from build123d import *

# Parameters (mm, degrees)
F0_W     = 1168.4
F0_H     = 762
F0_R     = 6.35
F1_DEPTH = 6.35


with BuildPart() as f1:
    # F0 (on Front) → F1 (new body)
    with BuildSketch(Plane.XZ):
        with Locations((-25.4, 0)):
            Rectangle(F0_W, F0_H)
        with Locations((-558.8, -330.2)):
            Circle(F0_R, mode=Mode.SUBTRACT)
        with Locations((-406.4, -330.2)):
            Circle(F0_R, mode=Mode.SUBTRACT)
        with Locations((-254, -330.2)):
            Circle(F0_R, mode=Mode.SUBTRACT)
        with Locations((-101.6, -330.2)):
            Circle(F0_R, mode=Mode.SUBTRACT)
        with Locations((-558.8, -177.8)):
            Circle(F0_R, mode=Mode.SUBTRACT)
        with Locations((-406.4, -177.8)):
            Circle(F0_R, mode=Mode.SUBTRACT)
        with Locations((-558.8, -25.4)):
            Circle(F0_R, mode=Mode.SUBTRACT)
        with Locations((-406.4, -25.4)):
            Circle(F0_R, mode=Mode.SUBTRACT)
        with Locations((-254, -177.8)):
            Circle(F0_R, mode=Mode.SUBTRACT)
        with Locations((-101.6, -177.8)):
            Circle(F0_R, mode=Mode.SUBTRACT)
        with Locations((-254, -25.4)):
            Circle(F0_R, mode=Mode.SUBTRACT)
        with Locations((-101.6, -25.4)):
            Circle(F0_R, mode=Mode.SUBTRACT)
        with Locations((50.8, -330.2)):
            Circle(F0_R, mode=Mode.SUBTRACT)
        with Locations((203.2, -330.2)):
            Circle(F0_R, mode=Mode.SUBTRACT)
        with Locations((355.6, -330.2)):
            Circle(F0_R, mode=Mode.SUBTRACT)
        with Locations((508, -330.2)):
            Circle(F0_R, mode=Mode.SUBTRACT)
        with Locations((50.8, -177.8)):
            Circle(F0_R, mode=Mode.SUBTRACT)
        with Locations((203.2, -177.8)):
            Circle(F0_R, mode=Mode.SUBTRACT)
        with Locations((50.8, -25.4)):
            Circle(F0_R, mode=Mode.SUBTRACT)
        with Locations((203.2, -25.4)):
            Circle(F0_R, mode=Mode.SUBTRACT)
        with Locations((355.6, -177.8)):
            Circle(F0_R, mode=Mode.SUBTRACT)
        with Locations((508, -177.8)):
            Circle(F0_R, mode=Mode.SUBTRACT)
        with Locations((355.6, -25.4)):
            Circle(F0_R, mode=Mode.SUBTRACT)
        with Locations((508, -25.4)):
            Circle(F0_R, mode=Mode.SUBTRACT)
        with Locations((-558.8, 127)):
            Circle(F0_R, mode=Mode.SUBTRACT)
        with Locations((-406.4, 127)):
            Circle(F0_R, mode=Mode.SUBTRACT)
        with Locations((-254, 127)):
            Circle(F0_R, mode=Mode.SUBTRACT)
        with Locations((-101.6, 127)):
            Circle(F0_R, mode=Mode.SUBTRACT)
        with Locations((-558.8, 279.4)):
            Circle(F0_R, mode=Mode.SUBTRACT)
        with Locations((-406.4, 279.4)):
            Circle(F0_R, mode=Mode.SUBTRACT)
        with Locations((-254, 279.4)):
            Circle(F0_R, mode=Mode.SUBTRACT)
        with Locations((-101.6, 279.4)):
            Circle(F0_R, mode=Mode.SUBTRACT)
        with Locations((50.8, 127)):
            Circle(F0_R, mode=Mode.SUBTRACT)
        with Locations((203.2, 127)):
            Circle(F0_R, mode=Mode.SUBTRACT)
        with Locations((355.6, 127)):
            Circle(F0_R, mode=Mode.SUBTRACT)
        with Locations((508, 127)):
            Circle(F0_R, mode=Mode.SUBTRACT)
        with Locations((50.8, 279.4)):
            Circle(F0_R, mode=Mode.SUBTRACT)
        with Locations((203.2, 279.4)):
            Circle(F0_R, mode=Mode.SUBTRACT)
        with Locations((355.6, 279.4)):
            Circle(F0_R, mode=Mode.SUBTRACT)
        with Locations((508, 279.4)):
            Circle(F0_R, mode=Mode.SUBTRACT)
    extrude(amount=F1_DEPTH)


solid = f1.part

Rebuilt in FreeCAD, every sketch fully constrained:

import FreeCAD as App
import Part
import Sketcher
from FreeCAD import Vector
Q = App.Units.Quantity


def add_polygon(sketch, points):
    """Adds a closed chain of lines whose ends are joined by coincident constraints."""
    first, n = sketch.GeometryCount, len(points)
    for a, b in zip(points, points[1:] + points[:1]):
        sketch.addGeometry(Part.LineSegment(App.Vector(*a, 0), App.Vector(*b, 0)), False)
    for i in range(n):
        sketch.addConstraint(Sketcher.Constraint("Coincident", first + i, 2, first + (i + 1) % n, 1))

doc = App.newDocument("Part")
body = doc.addObject("PartDesign::Body", "Body")

sketch1 = body.newObject("Sketcher::SketchObject", "Sketch")
sketch1.AttachmentSupport = (doc.getObject("XZ_Plane"), [""])
sketch1.MapMode = "FlatFace"
add_polygon(sketch1, [(-610, 381), (-610, -381), (559, -381), (559, 381)])
sketch1.addGeometry(Part.Circle(Vector(-559, -330, 0), Vector(0, 0, 1), 6), False)
sketch1.addGeometry(Part.Circle(Vector(-406, -330, 0), Vector(0, 0, 1), 6), False)
sketch1.addGeometry(Part.Circle(Vector(-254, -330, 0), Vector(0, 0, 1), 6), False)
sketch1.addGeometry(Part.Circle(Vector(-102, -330, 0), Vector(0, 0, 1), 6), False)
sketch1.addGeometry(Part.Circle(Vector(-559, -178, 0), Vector(0, 0, 1), 6), False)
sketch1.addGeometry(Part.Circle(Vector(-406, -178, 0), Vector(0, 0, 1), 6), False)
sketch1.addGeometry(Part.Circle(Vector(-254, -178, 0), Vector(0, 0, 1), 6), False)
sketch1.addGeometry(Part.Circle(Vector(-102, -178, 0), Vector(0, 0, 1), 6), False)
sketch1.addGeometry(Part.Circle(Vector(51, -330, 0), Vector(0, 0, 1), 6), False)
sketch1.addGeometry(Part.Circle(Vector(203, -330, 0), Vector(0, 0, 1), 6), False)
sketch1.addGeometry(Part.Circle(Vector(356, -330, 0), Vector(0, 0, 1), 6), False)
sketch1.addGeometry(Part.Circle(Vector(508, -330, 0), Vector(0, 0, 1), 6), False)
sketch1.addGeometry(Part.Circle(Vector(51, -178, 0), Vector(0, 0, 1), 6), False)
sketch1.addGeometry(Part.Circle(Vector(203, -178, 0), Vector(0, 0, 1), 6), False)
sketch1.addGeometry(Part.Circle(Vector(356, -178, 0), Vector(0, 0, 1), 6), False)
sketch1.addGeometry(Part.Circle(Vector(508, -178, 0), Vector(0, 0, 1), 6), False)
sketch1.addGeometry(Part.Circle(Vector(-559, -25, 0), Vector(0, 0, 1), 6), False)
sketch1.addGeometry(Part.Circle(Vector(-406, -25, 0), Vector(0, 0, 1), 6), False)
sketch1.addGeometry(Part.Circle(Vector(-559, 127, 0), Vector(0, 0, 1), 6), False)
sketch1.addGeometry(Part.Circle(Vector(-406, 127, 0), Vector(0, 0, 1), 6), False)
sketch1.addGeometry(Part.Circle(Vector(-254, -25, 0), Vector(0, 0, 1), 6), False)
sketch1.addGeometry(Part.Circle(Vector(-102, -25, 0), Vector(0, 0, 1), 6), False)
sketch1.addGeometry(Part.Circle(Vector(-254, 127, 0), Vector(0, 0, 1), 6), False)
sketch1.addGeometry(Part.Circle(Vector(-102, 127, 0), Vector(0, 0, 1), 6), False)
sketch1.addGeometry(Part.Circle(Vector(-559, 279, 0), Vector(0, 0, 1), 6), False)
sketch1.addGeometry(Part.Circle(Vector(-406, 279, 0), Vector(0, 0, 1), 6), False)
sketch1.addGeometry(Part.Circle(Vector(-254, 279, 0), Vector(0, 0, 1), 6), False)
sketch1.addGeometry(Part.Circle(Vector(-102, 279, 0), Vector(0, 0, 1), 6), False)
sketch1.addGeometry(Part.Circle(Vector(51, -25, 0), Vector(0, 0, 1), 6), False)
sketch1.addGeometry(Part.Circle(Vector(203, -25, 0), Vector(0, 0, 1), 6), False)
sketch1.addGeometry(Part.Circle(Vector(51, 127, 0), Vector(0, 0, 1), 6), False)
sketch1.addGeometry(Part.Circle(Vector(203, 127, 0), Vector(0, 0, 1), 6), False)
sketch1.addGeometry(Part.Circle(Vector(356, -25, 0), Vector(0, 0, 1), 6), False)
sketch1.addGeometry(Part.Circle(Vector(508, -25, 0), Vector(0, 0, 1), 6), False)
sketch1.addGeometry(Part.Circle(Vector(356, 127, 0), Vector(0, 0, 1), 6), False)
sketch1.addGeometry(Part.Circle(Vector(508, 127, 0), Vector(0, 0, 1), 6), False)
sketch1.addGeometry(Part.Circle(Vector(51, 279, 0), Vector(0, 0, 1), 6), False)
sketch1.addGeometry(Part.Circle(Vector(203, 279, 0), Vector(0, 0, 1), 6), False)
sketch1.addGeometry(Part.Circle(Vector(356, 279, 0), Vector(0, 0, 1), 6), False)
sketch1.addGeometry(Part.Circle(Vector(508, 279, 0), Vector(0, 0, 1), 6), False)
sketch1.addConstraint(Sketcher.Constraint("Vertical", 0))
sketch1.addConstraint(Sketcher.Constraint("Horizontal", 1))
sketch1.addConstraint(Sketcher.Constraint("Vertical", 2))
sketch1.addConstraint(Sketcher.Constraint("Horizontal", 3))
sketch1.addConstraint(Sketcher.Constraint("Equal", 4, 5))
sketch1.addConstraint(Sketcher.Constraint("Equal", 5, 6))
sketch1.addConstraint(Sketcher.Constraint("Equal", 6, 7))
sketch1.addConstraint(Sketcher.Constraint("Equal", 7, 8))
sketch1.addConstraint(Sketcher.Constraint("Equal", 8, 9))
sketch1.addConstraint(Sketcher.Constraint("Equal", 9, 10))
sketch1.addConstraint(Sketcher.Constraint("Equal", 10, 11))
sketch1.addConstraint(Sketcher.Constraint("Equal", 11, 12))
sketch1.addConstraint(Sketcher.Constraint("Equal", 12, 13))
sketch1.addConstraint(Sketcher.Constraint("Equal", 13, 14))
sketch1.addConstraint(Sketcher.Constraint("Equal", 14, 15))
sketch1.addConstraint(Sketcher.Constraint("Equal", 15, 16))
sketch1.addConstraint(Sketcher.Constraint("Equal", 16, 17))
sketch1.addConstraint(Sketcher.Constraint("Equal", 17, 18))
sketch1.addConstraint(Sketcher.Constraint("Equal", 18, 19))
sketch1.addConstraint(Sketcher.Constraint("Equal", 19, 20))
sketch1.addConstraint(Sketcher.Constraint("Equal", 20, 21))
sketch1.addConstraint(Sketcher.Constraint("Equal", 21, 22))
sketch1.addConstraint(Sketcher.Constraint("Equal", 22, 23))
sketch1.addConstraint(Sketcher.Constraint("Equal", 23, 24))
sketch1.addConstraint(Sketcher.Constraint("Equal", 24, 25))
sketch1.addConstraint(Sketcher.Constraint("Equal", 25, 26))
sketch1.addConstraint(Sketcher.Constraint("Equal", 26, 27))
sketch1.addConstraint(Sketcher.Constraint("Equal", 27, 28))
sketch1.addConstraint(Sketcher.Constraint("Equal", 28, 29))
sketch1.addConstraint(Sketcher.Constraint("Equal", 29, 30))
sketch1.addConstraint(Sketcher.Constraint("Equal", 30, 31))
sketch1.addConstraint(Sketcher.Constraint("Equal", 31, 32))
sketch1.addConstraint(Sketcher.Constraint("Equal", 32, 33))
sketch1.addConstraint(Sketcher.Constraint("Equal", 33, 34))
sketch1.addConstraint(Sketcher.Constraint("Equal", 34, 35))
sketch1.addConstraint(Sketcher.Constraint("Equal", 35, 36))
sketch1.addConstraint(Sketcher.Constraint("Equal", 36, 37))
sketch1.addConstraint(Sketcher.Constraint("Equal", 37, 38))
sketch1.addConstraint(Sketcher.Constraint("Equal", 38, 39))
sketch1.addConstraint(Sketcher.Constraint("Equal", 39, 40))
sketch1.addConstraint(Sketcher.Constraint("Equal", 40, 41))
sketch1.addConstraint(Sketcher.Constraint("Equal", 41, 42))
sketch1.addConstraint(Sketcher.Constraint("Equal", 42, 43))
sketch1.addConstraint(Sketcher.Constraint("Horizontal", 4, 3, 5, 3))
sketch1.addConstraint(Sketcher.Constraint("Horizontal", 5, 3, 6, 3))
sketch1.addConstraint(Sketcher.Constraint("Horizontal", 6, 3, 7, 3))
sketch1.addConstraint(Sketcher.Constraint("Horizontal", 8, 3, 9, 3))
sketch1.addConstraint(Sketcher.Constraint("Horizontal", 9, 3, 10, 3))
sketch1.addConstraint(Sketcher.Constraint("Horizontal", 10, 3, 11, 3))
sketch1.addConstraint(Sketcher.Constraint("Horizontal", 7, 3, 12, 3))
sketch1.addConstraint(Sketcher.Constraint("Horizontal", 12, 3, 13, 3))
sketch1.addConstraint(Sketcher.Constraint("Horizontal", 13, 3, 14, 3))
sketch1.addConstraint(Sketcher.Constraint("Horizontal", 14, 3, 15, 3))
sketch1.addConstraint(Sketcher.Constraint("Horizontal", 11, 3, 16, 3))
sketch1.addConstraint(Sketcher.Constraint("Horizontal", 16, 3, 17, 3))
sketch1.addConstraint(Sketcher.Constraint("Horizontal", 17, 3, 18, 3))
sketch1.addConstraint(Sketcher.Constraint("Horizontal", 18, 3, 19, 3))
sketch1.addConstraint(Sketcher.Constraint("Horizontal", 20, 3, 21, 3))
sketch1.addConstraint(Sketcher.Constraint("Horizontal", 22, 3, 23, 3))
sketch1.addConstraint(Sketcher.Constraint("Horizontal", 21, 3, 24, 3))
sketch1.addConstraint(Sketcher.Constraint("Horizontal", 24, 3, 25, 3))
sketch1.addConstraint(Sketcher.Constraint("Horizontal", 23, 3, 26, 3))
sketch1.addConstraint(Sketcher.Constraint("Horizontal", 26, 3, 27, 3))
sketch1.addConstraint(Sketcher.Constraint("Horizontal", 28, 3, 29, 3))
sketch1.addConstraint(Sketcher.Constraint("Horizontal", 29, 3, 30, 3))
sketch1.addConstraint(Sketcher.Constraint("Horizontal", 30, 3, 31, 3))
sketch1.addConstraint(Sketcher.Constraint("Horizontal", 25, 3, 32, 3))
sketch1.addConstraint(Sketcher.Constraint("Horizontal", 32, 3, 33, 3))
sketch1.addConstraint(Sketcher.Constraint("Horizontal", 27, 3, 34, 3))
sketch1.addConstraint(Sketcher.Constraint("Horizontal", 34, 3, 35, 3))
sketch1.addConstraint(Sketcher.Constraint("Horizontal", 33, 3, 36, 3))
sketch1.addConstraint(Sketcher.Constraint("Horizontal", 36, 3, 37, 3))
sketch1.addConstraint(Sketcher.Constraint("Horizontal", 35, 3, 38, 3))
sketch1.addConstraint(Sketcher.Constraint("Horizontal", 38, 3, 39, 3))
sketch1.addConstraint(Sketcher.Constraint("Horizontal", 31, 3, 40, 3))
sketch1.addConstraint(Sketcher.Constraint("Horizontal", 40, 3, 41, 3))
sketch1.addConstraint(Sketcher.Constraint("Horizontal", 41, 3, 42, 3))
sketch1.addConstraint(Sketcher.Constraint("Horizontal", 42, 3, 43, 3))
sketch1.addConstraint(Sketcher.Constraint("Vertical", 4, 3, 8, 3))
sketch1.addConstraint(Sketcher.Constraint("Vertical", 5, 3, 9, 3))
sketch1.addConstraint(Sketcher.Constraint("Vertical", 6, 3, 10, 3))
sketch1.addConstraint(Sketcher.Constraint("Vertical", 7, 3, 11, 3))
sketch1.addConstraint(Sketcher.Constraint("Vertical", 12, 3, 16, 3))
sketch1.addConstraint(Sketcher.Constraint("Vertical", 13, 3, 17, 3))
sketch1.addConstraint(Sketcher.Constraint("Vertical", 14, 3, 18, 3))
sketch1.addConstraint(Sketcher.Constraint("Vertical", 15, 3, 19, 3))
sketch1.addConstraint(Sketcher.Constraint("Vertical", 8, 3, 20, 3))
sketch1.addConstraint(Sketcher.Constraint("Vertical", 9, 3, 21, 3))
sketch1.addConstraint(Sketcher.Constraint("Vertical", 20, 3, 22, 3))
sketch1.addConstraint(Sketcher.Constraint("Vertical", 21, 3, 23, 3))
sketch1.addConstraint(Sketcher.Constraint("Vertical", 10, 3, 24, 3))
sketch1.addConstraint(Sketcher.Constraint("Vertical", 11, 3, 25, 3))
sketch1.addConstraint(Sketcher.Constraint("Vertical", 24, 3, 26, 3))
sketch1.addConstraint(Sketcher.Constraint("Vertical", 25, 3, 27, 3))
sketch1.addConstraint(Sketcher.Constraint("Vertical", 22, 3, 28, 3))
sketch1.addConstraint(Sketcher.Constraint("Vertical", 23, 3, 29, 3))
sketch1.addConstraint(Sketcher.Constraint("Vertical", 26, 3, 30, 3))
sketch1.addConstraint(Sketcher.Constraint("Vertical", 27, 3, 31, 3))
sketch1.addConstraint(Sketcher.Constraint("Vertical", 16, 3, 32, 3))
sketch1.addConstraint(Sketcher.Constraint("Vertical", 17, 3, 33, 3))
sketch1.addConstraint(Sketcher.Constraint("Vertical", 32, 3, 34, 3))
sketch1.addConstraint(Sketcher.Constraint("Vertical", 33, 3, 35, 3))
sketch1.addConstraint(Sketcher.Constraint("Vertical", 18, 3, 36, 3))
sketch1.addConstraint(Sketcher.Constraint("Vertical", 19, 3, 37, 3))
sketch1.addConstraint(Sketcher.Constraint("Vertical", 36, 3, 38, 3))
sketch1.addConstraint(Sketcher.Constraint("Vertical", 37, 3, 39, 3))
sketch1.addConstraint(Sketcher.Constraint("Vertical", 34, 3, 40, 3))
sketch1.addConstraint(Sketcher.Constraint("Vertical", 35, 3, 41, 3))
sketch1.addConstraint(Sketcher.Constraint("Vertical", 38, 3, 42, 3))
sketch1.addConstraint(Sketcher.Constraint("Vertical", 39, 3, 43, 3))
sketch1.addConstraint(Sketcher.Constraint("Diameter", 4, Q("0.5 in")))
sketch1.addConstraint(Sketcher.Constraint("DistanceX", 1, 1, 1, 2, Q("46 in")))
sketch1.addConstraint(Sketcher.Constraint("DistanceY", 0, 2, 0, 1, Q("30 in")))
sketch1.addConstraint(Sketcher.Constraint("DistanceX", 4, 3, -1, 1, Q("22 in")))
sketch1.addConstraint(Sketcher.Constraint("DistanceY", 4, 3, -1, 1, Q("13 in")))
sketch1.addConstraint(Sketcher.Constraint("DistanceX", 5, 3, -1, 1, Q("16 in")))
sketch1.addConstraint(Sketcher.Constraint("DistanceX", 6, 3, -1, 1, Q("10 in")))
sketch1.addConstraint(Sketcher.Constraint("DistanceX", 7, 3, -1, 1, Q("4 in")))
sketch1.addConstraint(Sketcher.Constraint("DistanceY", 8, 3, -1, 1, Q("7 in")))
sketch1.addConstraint(Sketcher.Constraint("DistanceX", -1, 1, 12, 3, Q("2 in")))
sketch1.addConstraint(Sketcher.Constraint("DistanceX", -1, 1, 13, 3, Q("8 in")))
sketch1.addConstraint(Sketcher.Constraint("DistanceX", -1, 1, 14, 3, Q("14 in")))
sketch1.addConstraint(Sketcher.Constraint("DistanceX", -1, 1, 15, 3, Q("20 in")))
sketch1.addConstraint(Sketcher.Constraint("DistanceY", 20, 3, -1, 1, Q("1 in")))
sketch1.addConstraint(Sketcher.Constraint("DistanceY", -1, 1, 22, 3, Q("5 in")))
sketch1.addConstraint(Sketcher.Constraint("DistanceY", -1, 1, 28, 3, Q("11 in")))
sketch1.addConstraint(Sketcher.Constraint("DistanceX", 0, 2, -1, 1, Q("24 in")))
sketch1.addConstraint(Sketcher.Constraint("DistanceY", 0, 2, -1, 1, Q("15 in")))
pad1 = body.newObject("PartDesign::Pad", "Pad")
pad1.Profile = sketch1
pad1.Length = Q("0.25 in")

doc.recompute()
